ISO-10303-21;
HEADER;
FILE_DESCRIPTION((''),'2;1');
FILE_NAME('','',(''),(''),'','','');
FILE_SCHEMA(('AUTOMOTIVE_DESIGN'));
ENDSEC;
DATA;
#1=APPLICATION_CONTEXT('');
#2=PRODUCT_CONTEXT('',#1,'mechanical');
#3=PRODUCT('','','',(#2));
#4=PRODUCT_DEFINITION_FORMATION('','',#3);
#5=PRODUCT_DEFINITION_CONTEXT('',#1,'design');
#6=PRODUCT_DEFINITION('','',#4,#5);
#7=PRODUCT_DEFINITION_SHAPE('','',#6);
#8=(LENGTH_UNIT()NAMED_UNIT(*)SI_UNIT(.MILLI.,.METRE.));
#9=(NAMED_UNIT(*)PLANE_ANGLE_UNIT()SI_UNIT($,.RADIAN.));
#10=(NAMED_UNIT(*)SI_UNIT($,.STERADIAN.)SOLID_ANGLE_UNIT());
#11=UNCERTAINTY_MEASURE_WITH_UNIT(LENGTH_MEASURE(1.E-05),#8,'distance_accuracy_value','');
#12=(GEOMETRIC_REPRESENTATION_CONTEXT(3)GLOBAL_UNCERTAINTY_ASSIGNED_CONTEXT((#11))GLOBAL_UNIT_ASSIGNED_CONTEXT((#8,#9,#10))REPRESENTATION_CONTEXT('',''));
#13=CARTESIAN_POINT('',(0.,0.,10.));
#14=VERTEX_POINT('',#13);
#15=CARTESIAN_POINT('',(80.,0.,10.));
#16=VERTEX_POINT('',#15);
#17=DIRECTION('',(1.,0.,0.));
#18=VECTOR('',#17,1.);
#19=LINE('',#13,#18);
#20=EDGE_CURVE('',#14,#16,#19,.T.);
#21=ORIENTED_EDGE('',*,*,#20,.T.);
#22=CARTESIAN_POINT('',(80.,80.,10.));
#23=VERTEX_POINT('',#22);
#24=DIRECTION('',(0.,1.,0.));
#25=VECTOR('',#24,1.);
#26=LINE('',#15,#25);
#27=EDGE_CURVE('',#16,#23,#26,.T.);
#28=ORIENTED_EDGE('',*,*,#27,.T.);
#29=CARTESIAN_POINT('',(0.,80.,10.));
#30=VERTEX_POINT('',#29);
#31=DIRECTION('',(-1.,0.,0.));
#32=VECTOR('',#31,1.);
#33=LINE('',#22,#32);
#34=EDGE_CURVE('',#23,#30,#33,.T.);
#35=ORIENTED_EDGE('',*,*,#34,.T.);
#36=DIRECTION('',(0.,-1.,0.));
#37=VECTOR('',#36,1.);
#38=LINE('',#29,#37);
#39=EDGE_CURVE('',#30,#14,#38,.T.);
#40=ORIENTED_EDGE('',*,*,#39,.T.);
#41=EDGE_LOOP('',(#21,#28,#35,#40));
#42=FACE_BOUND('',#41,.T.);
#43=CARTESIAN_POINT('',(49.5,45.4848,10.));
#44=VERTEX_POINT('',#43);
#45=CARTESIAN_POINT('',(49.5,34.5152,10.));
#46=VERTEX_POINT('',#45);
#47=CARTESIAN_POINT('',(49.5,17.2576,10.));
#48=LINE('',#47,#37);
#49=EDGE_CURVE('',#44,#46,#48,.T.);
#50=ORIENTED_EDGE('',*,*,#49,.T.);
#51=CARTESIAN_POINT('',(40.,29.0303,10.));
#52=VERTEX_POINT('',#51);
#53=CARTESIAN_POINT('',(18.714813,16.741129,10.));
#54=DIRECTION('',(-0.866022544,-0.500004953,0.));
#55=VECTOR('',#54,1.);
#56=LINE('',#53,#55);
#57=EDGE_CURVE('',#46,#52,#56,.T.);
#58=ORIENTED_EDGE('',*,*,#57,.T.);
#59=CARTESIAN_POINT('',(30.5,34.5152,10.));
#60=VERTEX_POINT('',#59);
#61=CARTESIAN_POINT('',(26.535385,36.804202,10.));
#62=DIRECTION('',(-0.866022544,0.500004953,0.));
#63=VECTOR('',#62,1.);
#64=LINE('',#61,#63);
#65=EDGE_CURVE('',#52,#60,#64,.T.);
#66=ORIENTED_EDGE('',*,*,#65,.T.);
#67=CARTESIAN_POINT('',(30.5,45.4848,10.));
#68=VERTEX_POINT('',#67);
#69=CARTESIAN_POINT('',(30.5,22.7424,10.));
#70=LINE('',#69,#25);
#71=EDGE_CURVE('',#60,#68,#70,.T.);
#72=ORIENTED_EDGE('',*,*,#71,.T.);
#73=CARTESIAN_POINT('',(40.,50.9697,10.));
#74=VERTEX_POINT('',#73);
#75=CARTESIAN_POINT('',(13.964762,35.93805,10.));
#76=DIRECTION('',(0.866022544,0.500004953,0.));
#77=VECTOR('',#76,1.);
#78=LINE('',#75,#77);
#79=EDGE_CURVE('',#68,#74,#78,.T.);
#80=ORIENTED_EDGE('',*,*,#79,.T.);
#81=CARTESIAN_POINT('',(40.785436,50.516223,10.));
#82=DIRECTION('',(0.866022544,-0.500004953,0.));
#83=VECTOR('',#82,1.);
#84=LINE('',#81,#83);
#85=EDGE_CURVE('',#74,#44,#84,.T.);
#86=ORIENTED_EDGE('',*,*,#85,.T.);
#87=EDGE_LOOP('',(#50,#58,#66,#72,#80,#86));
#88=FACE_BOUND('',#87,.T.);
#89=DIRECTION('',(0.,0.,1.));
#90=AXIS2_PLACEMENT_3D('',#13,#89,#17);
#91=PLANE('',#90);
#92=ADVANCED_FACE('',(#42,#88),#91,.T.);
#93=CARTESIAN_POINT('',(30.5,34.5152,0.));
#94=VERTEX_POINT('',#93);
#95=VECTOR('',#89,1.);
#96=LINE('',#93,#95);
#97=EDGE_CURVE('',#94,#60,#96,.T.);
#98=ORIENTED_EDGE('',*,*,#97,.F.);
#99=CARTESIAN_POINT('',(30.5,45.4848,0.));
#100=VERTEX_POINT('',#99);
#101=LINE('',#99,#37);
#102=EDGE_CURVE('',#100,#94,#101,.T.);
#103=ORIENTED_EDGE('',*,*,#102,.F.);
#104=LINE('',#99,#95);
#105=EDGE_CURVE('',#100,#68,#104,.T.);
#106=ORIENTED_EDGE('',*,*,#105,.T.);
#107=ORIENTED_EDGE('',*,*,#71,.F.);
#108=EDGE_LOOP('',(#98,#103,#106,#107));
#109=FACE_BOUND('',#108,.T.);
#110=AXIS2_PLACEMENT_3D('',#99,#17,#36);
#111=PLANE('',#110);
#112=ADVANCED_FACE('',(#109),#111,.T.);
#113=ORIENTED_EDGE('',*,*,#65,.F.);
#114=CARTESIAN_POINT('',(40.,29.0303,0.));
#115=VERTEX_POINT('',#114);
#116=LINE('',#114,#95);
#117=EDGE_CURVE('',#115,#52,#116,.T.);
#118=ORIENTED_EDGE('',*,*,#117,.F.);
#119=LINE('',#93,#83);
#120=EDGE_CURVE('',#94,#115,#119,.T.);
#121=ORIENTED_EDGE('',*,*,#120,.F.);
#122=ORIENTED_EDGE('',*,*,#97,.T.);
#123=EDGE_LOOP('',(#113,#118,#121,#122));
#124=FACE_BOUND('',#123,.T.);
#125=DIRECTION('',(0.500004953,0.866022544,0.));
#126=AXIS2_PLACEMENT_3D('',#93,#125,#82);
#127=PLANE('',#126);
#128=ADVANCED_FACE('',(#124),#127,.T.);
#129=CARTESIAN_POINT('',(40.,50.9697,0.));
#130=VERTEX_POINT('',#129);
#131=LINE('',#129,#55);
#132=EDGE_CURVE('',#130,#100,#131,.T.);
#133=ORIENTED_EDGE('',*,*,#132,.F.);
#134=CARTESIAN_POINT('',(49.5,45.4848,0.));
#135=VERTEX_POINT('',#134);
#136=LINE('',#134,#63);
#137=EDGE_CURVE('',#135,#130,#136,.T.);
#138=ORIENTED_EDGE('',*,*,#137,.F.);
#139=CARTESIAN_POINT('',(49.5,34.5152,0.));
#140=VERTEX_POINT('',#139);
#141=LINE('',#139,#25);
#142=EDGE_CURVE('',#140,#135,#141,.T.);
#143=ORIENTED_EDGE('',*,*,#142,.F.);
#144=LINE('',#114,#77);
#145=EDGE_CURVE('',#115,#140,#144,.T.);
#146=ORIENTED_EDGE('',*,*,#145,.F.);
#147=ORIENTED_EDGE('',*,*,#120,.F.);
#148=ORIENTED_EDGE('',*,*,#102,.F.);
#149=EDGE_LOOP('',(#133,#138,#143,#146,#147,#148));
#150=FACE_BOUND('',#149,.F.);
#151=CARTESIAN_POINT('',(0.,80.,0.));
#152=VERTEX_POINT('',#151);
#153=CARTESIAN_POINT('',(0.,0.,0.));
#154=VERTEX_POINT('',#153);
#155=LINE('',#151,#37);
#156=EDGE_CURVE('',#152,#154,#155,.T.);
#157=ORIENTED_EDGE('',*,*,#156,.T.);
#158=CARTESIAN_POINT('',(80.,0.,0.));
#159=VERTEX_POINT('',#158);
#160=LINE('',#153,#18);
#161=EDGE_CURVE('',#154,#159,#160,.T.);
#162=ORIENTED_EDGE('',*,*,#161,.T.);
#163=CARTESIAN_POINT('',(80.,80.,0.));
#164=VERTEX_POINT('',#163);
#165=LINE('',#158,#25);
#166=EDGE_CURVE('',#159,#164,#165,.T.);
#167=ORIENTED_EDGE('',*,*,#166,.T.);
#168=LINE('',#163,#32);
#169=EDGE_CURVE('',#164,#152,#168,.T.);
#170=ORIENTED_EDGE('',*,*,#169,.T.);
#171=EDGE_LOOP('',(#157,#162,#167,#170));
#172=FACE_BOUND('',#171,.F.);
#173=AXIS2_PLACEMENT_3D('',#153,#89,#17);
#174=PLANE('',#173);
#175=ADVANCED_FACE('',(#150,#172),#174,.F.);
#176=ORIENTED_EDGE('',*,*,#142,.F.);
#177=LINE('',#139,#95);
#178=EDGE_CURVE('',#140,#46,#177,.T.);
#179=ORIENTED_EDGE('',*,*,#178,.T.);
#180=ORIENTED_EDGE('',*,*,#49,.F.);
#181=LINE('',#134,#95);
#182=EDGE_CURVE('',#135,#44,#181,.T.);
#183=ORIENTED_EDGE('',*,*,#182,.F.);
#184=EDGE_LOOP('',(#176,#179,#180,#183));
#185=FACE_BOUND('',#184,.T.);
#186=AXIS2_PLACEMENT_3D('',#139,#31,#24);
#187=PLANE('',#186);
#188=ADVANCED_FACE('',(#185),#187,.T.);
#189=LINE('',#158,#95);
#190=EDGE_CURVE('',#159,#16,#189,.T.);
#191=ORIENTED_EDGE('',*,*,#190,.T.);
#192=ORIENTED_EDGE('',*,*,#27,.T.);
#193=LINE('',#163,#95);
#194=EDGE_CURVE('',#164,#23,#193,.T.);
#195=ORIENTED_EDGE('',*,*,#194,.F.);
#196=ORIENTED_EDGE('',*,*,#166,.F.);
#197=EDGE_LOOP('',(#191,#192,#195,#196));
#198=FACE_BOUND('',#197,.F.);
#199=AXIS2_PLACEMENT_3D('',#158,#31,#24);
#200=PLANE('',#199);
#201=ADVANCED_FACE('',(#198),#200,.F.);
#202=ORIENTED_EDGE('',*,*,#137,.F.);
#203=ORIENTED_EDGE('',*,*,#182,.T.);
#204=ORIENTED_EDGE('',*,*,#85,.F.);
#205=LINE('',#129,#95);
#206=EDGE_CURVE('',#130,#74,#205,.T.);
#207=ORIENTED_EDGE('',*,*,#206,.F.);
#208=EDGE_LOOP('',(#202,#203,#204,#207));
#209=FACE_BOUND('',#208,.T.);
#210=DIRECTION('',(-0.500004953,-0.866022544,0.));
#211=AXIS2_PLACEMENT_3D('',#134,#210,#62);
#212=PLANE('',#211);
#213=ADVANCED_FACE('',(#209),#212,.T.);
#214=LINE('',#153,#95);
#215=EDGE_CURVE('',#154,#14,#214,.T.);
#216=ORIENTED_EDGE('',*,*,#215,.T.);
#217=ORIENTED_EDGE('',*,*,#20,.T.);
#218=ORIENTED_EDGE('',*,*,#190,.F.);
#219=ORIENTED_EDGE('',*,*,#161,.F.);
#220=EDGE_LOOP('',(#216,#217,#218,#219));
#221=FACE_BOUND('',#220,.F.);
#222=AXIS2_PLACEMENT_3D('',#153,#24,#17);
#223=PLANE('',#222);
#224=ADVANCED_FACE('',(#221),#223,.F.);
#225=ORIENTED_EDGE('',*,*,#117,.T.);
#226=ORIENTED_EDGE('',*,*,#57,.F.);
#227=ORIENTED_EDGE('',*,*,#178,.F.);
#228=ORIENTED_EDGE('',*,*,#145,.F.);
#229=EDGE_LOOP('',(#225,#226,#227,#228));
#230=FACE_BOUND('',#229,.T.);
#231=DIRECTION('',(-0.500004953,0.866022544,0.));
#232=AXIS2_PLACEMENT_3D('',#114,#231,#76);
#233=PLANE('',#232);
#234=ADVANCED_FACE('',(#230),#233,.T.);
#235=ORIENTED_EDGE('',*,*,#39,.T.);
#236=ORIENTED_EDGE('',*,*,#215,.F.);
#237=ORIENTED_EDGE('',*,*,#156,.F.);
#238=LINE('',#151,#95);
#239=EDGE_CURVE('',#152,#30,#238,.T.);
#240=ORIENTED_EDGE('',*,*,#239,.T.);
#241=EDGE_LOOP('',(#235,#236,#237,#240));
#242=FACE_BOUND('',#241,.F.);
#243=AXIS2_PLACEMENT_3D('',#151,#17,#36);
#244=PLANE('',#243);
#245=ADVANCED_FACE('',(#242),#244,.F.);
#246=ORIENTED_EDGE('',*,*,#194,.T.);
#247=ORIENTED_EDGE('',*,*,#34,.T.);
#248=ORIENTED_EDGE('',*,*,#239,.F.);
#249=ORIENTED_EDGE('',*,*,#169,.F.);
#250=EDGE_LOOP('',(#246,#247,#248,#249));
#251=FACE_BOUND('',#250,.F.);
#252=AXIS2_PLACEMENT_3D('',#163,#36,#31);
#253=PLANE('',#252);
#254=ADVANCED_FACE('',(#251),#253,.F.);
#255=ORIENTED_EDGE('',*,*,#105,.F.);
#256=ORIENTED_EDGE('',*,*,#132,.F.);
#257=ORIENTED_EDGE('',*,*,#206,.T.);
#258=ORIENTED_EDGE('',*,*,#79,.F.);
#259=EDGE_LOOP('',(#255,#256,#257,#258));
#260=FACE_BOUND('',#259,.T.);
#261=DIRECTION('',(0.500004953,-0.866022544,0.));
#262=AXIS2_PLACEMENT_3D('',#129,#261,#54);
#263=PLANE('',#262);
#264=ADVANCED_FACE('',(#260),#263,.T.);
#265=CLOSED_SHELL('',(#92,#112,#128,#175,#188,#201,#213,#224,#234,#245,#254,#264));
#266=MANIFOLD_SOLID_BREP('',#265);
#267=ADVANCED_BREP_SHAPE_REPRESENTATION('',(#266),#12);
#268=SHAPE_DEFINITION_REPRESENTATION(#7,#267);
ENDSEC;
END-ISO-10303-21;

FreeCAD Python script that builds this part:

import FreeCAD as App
import Part
import Sketcher
Q = App.Units.Quantity


def add_polygon(sketch, points):
    """Adds a closed chain of lines whose ends are joined by coincident constraints."""
    first, n = sketch.GeometryCount, len(points)
    for a, b in zip(points, points[1:] + points[:1]):
        sketch.addGeometry(Part.LineSegment(App.Vector(*a, 0), App.Vector(*b, 0)), False)
    for i in range(n):
        sketch.addConstraint(Sketcher.Constraint("Coincident", first + i, 2, first + (i + 1) % n, 1))

doc = App.newDocument("Part")
body = doc.addObject("PartDesign::Body", "Body")

# Sketch on XY plane
sketch1 = doc.addObject("Sketcher::SketchObject", "Sketch")
body.addObject(sketch1)
sketch1.AttachmentSupport = (doc.XY_Plane, [""])
sketch1.MapMode = "FlatFace"
add_polygon(sketch1, [(0, 80), (0, 0), (80, 0), (80, 80)])  # lines 0-3
sketch1.addConstraint([
    Sketcher.Constraint("Vertical", 0),
    Sketcher.Constraint("Horizontal", 1),
    Sketcher.Constraint("Vertical", 2),
    Sketcher.Constraint("Horizontal", 3),
    Sketcher.Constraint("Coincident", 0, 2, -1, 1),
    Sketcher.Constraint("Equal", 3, 0),
    Sketcher.Constraint("DistanceX", 1, 1, 1, 2, Q("80 mm")),
])
pad1 = doc.addObject("PartDesign::Pad", "Pad")
body.addObject(pad1)
pad1.Profile = sketch1
pad1.Length = 10

# Sketch on XY plane
sketch2 = doc.addObject("Sketcher::SketchObject", "Sketch001")
body.addObject(sketch2)
sketch2.AttachmentSupport = (doc.XY_Plane, [""])
sketch2.MapMode = "FlatFace"
add_polygon(sketch2, [(49.5, 45.4848), (49.5, 34.5152), (40, 29.0303), (30.5, 34.5152), (30.5, 45.4848), (40, 50.9697)])  # lines 0-5
sketch2.addConstraint([
    Sketcher.Constraint("Vertical", 0),
    Sketcher.Constraint("Vertical", 3),
    Sketcher.Constraint("Parallel", 1, 4),
    Sketcher.Constraint("Parallel", 2, 5),
    Sketcher.Constraint("Horizontal", 0, 2, 2, 2),
    Sketcher.Constraint("Horizontal", 3, 2, 5, 2),
    Sketcher.Constraint("Vertical", 1, 2, 4, 2),
    Sketcher.Constraint("Angle", 1, Q("-149.9997 deg")),
    Sketcher.Constraint("DistanceX", -1, 1, 1, 2, Q("40 mm")),
    Sketcher.Constraint("DistanceX", 2, 2, 0, 2, Q("19 mm")),
    Sketcher.Constraint("DistanceY", 0, 2, 0, 1, Q("10.9696 mm")),
    Sketcher.Constraint("DistanceY", -1, 1, 0, 2, Q("34.5152 mm")),
])
pocket1 = doc.addObject("PartDesign::Pocket", "Pocket")
body.addObject(pocket1)
pocket1.Profile = sketch2
pocket1.Length = 20
pocket1.Reversed = True

doc.recompute()
